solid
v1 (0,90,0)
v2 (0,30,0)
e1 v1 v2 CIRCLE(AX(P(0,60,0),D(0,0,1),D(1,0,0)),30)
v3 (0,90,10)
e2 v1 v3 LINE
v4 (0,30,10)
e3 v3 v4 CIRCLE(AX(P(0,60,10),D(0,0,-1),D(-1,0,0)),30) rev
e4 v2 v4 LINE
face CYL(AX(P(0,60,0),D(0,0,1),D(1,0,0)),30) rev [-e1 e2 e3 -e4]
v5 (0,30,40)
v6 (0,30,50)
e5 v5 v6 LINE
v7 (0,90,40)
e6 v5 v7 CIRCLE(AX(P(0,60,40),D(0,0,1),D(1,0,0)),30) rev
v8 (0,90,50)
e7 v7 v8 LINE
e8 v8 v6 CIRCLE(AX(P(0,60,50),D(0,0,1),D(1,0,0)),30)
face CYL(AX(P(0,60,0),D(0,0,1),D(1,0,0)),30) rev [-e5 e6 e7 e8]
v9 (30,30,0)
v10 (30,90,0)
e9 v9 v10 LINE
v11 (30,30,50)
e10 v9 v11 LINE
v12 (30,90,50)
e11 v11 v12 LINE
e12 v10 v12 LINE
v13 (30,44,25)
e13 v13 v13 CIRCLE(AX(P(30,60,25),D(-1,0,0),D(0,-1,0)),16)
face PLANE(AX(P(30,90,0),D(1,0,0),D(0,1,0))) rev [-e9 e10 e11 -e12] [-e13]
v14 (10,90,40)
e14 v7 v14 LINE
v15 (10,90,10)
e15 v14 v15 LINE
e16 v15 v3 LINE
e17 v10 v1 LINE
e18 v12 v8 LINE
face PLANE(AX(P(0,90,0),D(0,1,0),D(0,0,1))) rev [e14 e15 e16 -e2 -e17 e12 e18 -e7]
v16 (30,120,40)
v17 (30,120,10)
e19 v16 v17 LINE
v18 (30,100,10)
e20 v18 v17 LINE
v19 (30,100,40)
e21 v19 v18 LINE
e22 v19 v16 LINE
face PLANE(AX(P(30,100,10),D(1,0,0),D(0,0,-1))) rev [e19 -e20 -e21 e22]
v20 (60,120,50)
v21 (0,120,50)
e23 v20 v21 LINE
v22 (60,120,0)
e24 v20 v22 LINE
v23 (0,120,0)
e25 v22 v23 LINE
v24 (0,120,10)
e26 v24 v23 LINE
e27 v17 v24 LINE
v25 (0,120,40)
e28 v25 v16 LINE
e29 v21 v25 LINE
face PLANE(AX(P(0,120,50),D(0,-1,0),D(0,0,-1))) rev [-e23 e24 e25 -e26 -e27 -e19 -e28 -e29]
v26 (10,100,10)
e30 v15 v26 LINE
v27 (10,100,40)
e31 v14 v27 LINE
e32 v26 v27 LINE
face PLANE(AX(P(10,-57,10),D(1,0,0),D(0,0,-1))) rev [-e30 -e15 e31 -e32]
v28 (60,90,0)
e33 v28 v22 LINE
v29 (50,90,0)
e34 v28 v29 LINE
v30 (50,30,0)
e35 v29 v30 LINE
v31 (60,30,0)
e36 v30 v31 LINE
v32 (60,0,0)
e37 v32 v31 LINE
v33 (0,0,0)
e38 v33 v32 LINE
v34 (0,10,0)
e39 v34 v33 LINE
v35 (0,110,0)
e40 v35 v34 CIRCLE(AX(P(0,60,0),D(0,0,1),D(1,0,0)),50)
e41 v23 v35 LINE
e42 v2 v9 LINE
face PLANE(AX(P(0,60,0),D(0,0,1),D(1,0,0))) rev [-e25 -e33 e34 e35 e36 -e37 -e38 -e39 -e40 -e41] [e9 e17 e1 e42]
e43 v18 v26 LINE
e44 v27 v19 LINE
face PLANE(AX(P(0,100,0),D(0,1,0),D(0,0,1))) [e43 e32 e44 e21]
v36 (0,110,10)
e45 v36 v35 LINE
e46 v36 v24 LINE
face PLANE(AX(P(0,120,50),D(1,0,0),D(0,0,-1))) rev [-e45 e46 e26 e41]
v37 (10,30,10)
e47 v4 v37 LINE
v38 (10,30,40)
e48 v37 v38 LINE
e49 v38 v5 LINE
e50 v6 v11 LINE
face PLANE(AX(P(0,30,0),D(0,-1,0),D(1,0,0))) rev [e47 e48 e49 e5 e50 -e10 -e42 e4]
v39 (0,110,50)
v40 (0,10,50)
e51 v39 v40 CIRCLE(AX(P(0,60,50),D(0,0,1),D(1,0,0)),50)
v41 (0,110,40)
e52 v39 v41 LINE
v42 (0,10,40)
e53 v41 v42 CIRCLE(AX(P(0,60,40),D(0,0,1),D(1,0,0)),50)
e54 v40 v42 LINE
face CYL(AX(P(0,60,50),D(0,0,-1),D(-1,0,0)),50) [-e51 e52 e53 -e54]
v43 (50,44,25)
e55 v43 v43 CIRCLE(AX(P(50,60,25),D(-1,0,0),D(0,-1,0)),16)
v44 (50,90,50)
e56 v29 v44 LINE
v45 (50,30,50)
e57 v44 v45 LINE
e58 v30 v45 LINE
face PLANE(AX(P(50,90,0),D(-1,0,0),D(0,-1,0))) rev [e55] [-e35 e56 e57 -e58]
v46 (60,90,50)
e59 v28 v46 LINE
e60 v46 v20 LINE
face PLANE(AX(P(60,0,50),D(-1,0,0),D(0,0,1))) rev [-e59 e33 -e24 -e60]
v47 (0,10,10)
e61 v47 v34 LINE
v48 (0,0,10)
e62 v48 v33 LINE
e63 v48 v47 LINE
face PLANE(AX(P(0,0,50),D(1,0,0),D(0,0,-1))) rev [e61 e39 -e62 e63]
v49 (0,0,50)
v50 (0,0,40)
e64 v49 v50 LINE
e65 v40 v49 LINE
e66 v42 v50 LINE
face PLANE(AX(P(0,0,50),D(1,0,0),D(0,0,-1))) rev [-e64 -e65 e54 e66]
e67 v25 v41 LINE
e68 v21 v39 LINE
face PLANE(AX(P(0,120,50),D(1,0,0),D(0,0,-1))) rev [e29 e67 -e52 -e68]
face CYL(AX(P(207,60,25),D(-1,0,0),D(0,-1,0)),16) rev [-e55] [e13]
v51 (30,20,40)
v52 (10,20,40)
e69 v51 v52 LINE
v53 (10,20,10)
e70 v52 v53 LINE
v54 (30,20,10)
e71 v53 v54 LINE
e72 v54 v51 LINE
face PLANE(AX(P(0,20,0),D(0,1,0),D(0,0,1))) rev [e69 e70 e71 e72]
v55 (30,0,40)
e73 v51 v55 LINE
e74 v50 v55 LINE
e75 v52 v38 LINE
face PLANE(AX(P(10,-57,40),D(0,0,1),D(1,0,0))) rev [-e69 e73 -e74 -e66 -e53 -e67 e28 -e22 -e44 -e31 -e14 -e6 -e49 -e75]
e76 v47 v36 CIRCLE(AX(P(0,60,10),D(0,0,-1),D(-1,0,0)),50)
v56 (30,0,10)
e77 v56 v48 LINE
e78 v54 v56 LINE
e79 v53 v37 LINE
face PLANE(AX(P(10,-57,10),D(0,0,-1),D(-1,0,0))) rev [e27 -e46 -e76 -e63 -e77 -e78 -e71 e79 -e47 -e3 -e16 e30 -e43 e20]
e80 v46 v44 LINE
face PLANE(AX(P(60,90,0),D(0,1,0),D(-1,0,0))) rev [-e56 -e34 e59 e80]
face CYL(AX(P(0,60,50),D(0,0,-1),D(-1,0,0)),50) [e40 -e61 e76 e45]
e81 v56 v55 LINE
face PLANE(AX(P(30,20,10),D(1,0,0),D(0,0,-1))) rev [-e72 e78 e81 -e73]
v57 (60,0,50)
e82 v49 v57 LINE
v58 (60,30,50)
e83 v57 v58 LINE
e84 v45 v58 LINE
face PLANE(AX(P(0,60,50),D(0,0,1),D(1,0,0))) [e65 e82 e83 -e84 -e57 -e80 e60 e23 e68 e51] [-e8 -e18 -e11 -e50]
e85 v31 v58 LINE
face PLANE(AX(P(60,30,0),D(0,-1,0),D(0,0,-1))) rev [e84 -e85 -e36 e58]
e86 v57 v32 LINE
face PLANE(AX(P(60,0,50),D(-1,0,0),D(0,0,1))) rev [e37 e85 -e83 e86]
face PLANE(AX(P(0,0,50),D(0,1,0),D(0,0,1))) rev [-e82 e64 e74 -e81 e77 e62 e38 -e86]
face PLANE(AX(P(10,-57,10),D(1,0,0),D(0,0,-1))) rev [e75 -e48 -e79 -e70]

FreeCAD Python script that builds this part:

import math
import FreeCAD as App
import Part
import Sketcher
from FreeCAD import Vector


def add_polygon(sketch, points):
    """Adds a closed chain of lines whose ends are joined by coincident constraints."""
    first, n = sketch.GeometryCount, len(points)
    for a, b in zip(points, points[1:] + points[:1]):
        sketch.addGeometry(Part.LineSegment(App.Vector(*a, 0), App.Vector(*b, 0)), False)
    for i in range(n):
        sketch.addConstraint(Sketcher.Constraint("Coincident", first + i, 2, first + (i + 1) % n, 1))

doc = App.newDocument("Part")
body = doc.addObject("PartDesign::Body", "Body")

# Sketch on XY plane
sketch1 = body.newObject("Sketcher::SketchObject", "Sketch")
sketch1.AttachmentSupport = (doc.getObject("XY_Plane"), [""])
sketch1.MapMode = "FlatFace"
sketch1.addGeometry([
    Part.LineSegment(Vector(0, 120, 0), Vector(0, 110, 0)),  # 0
    Part.ArcOfCircle(Part.Circle(Vector(0, 60, 0), Vector(0, 0, 1), 50), math.radians(90), math.radians(270)),  # 1
    Part.LineSegment(Vector(0, 10, 0), Vector(0, 0, 0)),  # 2
    Part.LineSegment(Vector(0, 0, 0), Vector(60, 0, 0)),  # 3
    Part.LineSegment(Vector(60, 0, 0), Vector(60, 120, 0)),  # 4
    Part.LineSegment(Vector(60, 120, 0), Vector(0, 120, 0)),  # 5
], False)
sketch1.addConstraint([
    Sketcher.Constraint("Coincident", 0, 2, 1, 1),
    Sketcher.Constraint("Coincident", 1, 2, 2, 1),
    Sketcher.Constraint("Coincident", 2, 2, 3, 1),
    Sketcher.Constraint("Coincident", 3, 2, 4, 1),
    Sketcher.Constraint("Coincident", 4, 2, 5, 1),
    Sketcher.Constraint("Coincident", 5, 2, 0, 1),
    Sketcher.Constraint("Vertical", 0),
    Sketcher.Constraint("Vertical", 2),
    Sketcher.Constraint("Horizontal", 3),
    Sketcher.Constraint("Vertical", 4),
    Sketcher.Constraint("Horizontal", 5),
    Sketcher.Constraint("Coincident", 2, 2, -1, 1),
    Sketcher.Constraint("PointOnObject", 1, 3, -2),
    Sketcher.Constraint("PointOnObject", 0, 2, -2),
    Sketcher.Constraint("Equal", 0, 2),
    Sketcher.Constraint("Radius", 1, 50.0),
    Sketcher.Constraint("DistanceX", 3, 1, 3, 2, 60.0),
    Sketcher.Constraint("DistanceY", 0, 2, 0, 1, 10.0),
])
pad1 = body.newObject("PartDesign::Pad", "Pad")
pad1.Profile = sketch1
pad1.Length = 50

# Sketch on XY plane
sketch2 = body.newObject("Sketcher::SketchObject", "Sketch001")
sketch2.AttachmentSupport = (doc.getObject("XY_Plane"), [""])
sketch2.MapMode = "FlatFace"
sketch2.AttachmentOffset = App.Placement(Vector(0, 0, 50), App.Rotation())
add_polygon(sketch2, [(50, 90), (50, 30), (60, 30), (60, 90)])  # lines 0-3
sketch2.addConstraint([
    Sketcher.Constraint("Vertical", 0),
    Sketcher.Constraint("Horizontal", 1),
    Sketcher.Constraint("Vertical", 2),
    Sketcher.Constraint("Horizontal", 3),
    Sketcher.Constraint("DistanceX", 1, 1, 1, 2, 10.0),
    Sketcher.Constraint("DistanceY", 0, 2, 0, 1, 60.0),
    Sketcher.Constraint("DistanceX", -1, 1, 0, 2, 50.0),
    Sketcher.Constraint("DistanceY", -1, 1, 0, 2, 30.0),
])
pocket1 = body.newObject("PartDesign::Pocket", "Pocket")
pocket1.Profile = sketch2
pocket1.Length = 50

# Sketch on XY plane
sketch3 = body.newObject("Sketcher::SketchObject", "Sketch002")
sketch3.AttachmentSupport = (doc.getObject("XY_Plane"), [""])
sketch3.MapMode = "FlatFace"
sketch3.AttachmentOffset = App.Placement(Vector(0, 0, 50), App.Rotation())
sketch3.addGeometry([
    Part.LineSegment(Vector(30, 30, 0), Vector(30, 90, 0)),
    Part.LineSegment(Vector(30, 90, 0), Vector(0, 90, 0)),
    Part.ArcOfCircle(Part.Circle(Vector(0, 60, 0), Vector(0, 0, 1), 30), math.radians(90), math.radians(270)),
    Part.LineSegment(Vector(0, 30, 0), Vector(30, 30, 0)),
], False)
sketch3.addConstraint([
    Sketcher.Constraint("Coincident", 0, 2, 1, 1),
    Sketcher.Constraint("Tangent", 1, 2, 2, 1),
    Sketcher.Constraint("Tangent", 2, 2, 3, 1),
    Sketcher.Constraint("Coincident", 3, 2, 0, 1),
    Sketcher.Constraint("Vertical", 0),
    Sketcher.Constraint("Horizontal", 1),
    Sketcher.Constraint("Horizontal", 3),
    Sketcher.Constraint("PointOnObject", 2, 3, -2),
    Sketcher.Constraint("Radius", 2, 30.0),
    Sketcher.Constraint("DistanceX", 1, 2, 1, 1, 30.0),
    Sketcher.Constraint("DistanceY", -1, 1, 2, 3, 60.0),
])
pocket2 = body.newObject("PartDesign::Pocket", "Pocket001")
pocket2.Profile = sketch3
pocket2.Length = 50

# Sketch on XZ plane
sketch4 = body.newObject("Sketcher::SketchObject", "Sketch003")
sketch4.AttachmentSupport = (doc.getObject("XZ_Plane"), [""])
sketch4.MapMode = "FlatFace"
sketch4.AttachmentOffset = App.Placement(Vector(0, 0, -120), App.Rotation())
add_polygon(sketch4, [(-50, 10), (-50, 40), (10, 40), (10, 10)])  # lines 0-3
sketch4.addConstraint([
    Sketcher.Constraint("Vertical", 0),
    Sketcher.Constraint("Horizontal", 1),
    Sketcher.Constraint("Vertical", 2),
    Sketcher.Constraint("Horizontal", 3),
    Sketcher.Constraint("DistanceX", 1, 1, 1, 2, 60.0),
    Sketcher.Constraint("DistanceY", 0, 1, 0, 2, 30.0),
    Sketcher.Constraint("DistanceX", 0, 2, -1, 1, 50.0),
    Sketcher.Constraint("DistanceY", -1, 1, 0, 2, 40.0),
])
pocket3 = body.newObject("PartDesign::Pocket", "Pocket002")
pocket3.Profile = sketch4
pocket3.Length = 177
pocket3.Reversed = True

# Sketch on YZ plane
sketch5 = body.newObject("Sketcher::SketchObject", "Sketch004")
sketch5.AttachmentSupport = (doc.getObject("YZ_Plane"), [""])
sketch5.MapMode = "FlatFace"
sketch5.AttachmentOffset = App.Placement(Vector(0, 0, 30), App.Rotation())
sketch5.addGeometry(Part.Circle(Vector(60, 25, 0), Vector(0, 0, 1), 16), False)
sketch5.addConstraint([
    Sketcher.Constraint("Diameter", 0, 32.0),
    Sketcher.Constraint("DistanceX", -1, 1, 0, 3, 60.0),
    Sketcher.Constraint("DistanceY", -1, 1, 0, 3, 25.0),
])
pocket4 = body.newObject("PartDesign::Pocket", "Pocket003")
pocket4.Profile = sketch5
pocket4.Length = 177
pocket4.Reversed = True

# Sketch on XZ plane
sketch6 = body.newObject("Sketcher::SketchObject", "Sketch005")
sketch6.AttachmentSupport = (doc.getObject("XZ_Plane"), [""])
sketch6.MapMode = "FlatFace"
sketch6.AttachmentOffset = App.Placement(Vector(0, 0, -120), App.Rotation())
add_polygon(sketch6, [(10, 10), (10, 40), (30, 40), (30, 10)])  # lines 0-3
sketch6.addConstraint([
    Sketcher.Constraint("Vertical", 0),
    Sketcher.Constraint("Horizontal", 1),
    Sketcher.Constraint("Vertical", 2),
    Sketcher.Constraint("Horizontal", 3),
    Sketcher.Constraint("DistanceX", 1, 1, 1, 2, 20.0),
    Sketcher.Constraint("DistanceY", 0, 1, 0, 2, 30.0),
    Sketcher.Constraint("DistanceX", -1, 1, 0, 2, 10.0),
    Sketcher.Constraint("DistanceY", -1, 1, 0, 2, 40.0),
])
pocket5 = body.newObject("PartDesign::Pocket", "Pocket004")
pocket5.Profile = sketch6
pocket5.Length = 20
pocket5.Reversed = True

# Sketch on XZ plane
sketch7 = body.newObject("Sketcher::SketchObject", "Sketch006")
sketch7.AttachmentSupport = (doc.getObject("XZ_Plane"), [""])
sketch7.MapMode = "FlatFace"
add_polygon(sketch7, [(10, 40), (10, 10), (30, 10), (30, 40)])  # lines 0-3
sketch7.addConstraint([
    Sketcher.Constraint("Vertical", 0),
    Sketcher.Constraint("Horizontal", 1),
    Sketcher.Constraint("Vertical", 2),
    Sketcher.Constraint("Horizontal", 3),
    Sketcher.Constraint("DistanceX", 1, 1, 1, 2, 20.0),
    Sketcher.Constraint("DistanceY", 0, 2, 0, 1, 30.0),
    Sketcher.Constraint("DistanceX", -1, 1, 0, 2, 10.0),
    Sketcher.Constraint("DistanceY", -1, 1, 0, 2, 10.0),
])
pocket6 = body.newObject("PartDesign::Pocket", "Pocket005")
pocket6.Profile = sketch7
pocket6.Length = 20

doc.recompute()
